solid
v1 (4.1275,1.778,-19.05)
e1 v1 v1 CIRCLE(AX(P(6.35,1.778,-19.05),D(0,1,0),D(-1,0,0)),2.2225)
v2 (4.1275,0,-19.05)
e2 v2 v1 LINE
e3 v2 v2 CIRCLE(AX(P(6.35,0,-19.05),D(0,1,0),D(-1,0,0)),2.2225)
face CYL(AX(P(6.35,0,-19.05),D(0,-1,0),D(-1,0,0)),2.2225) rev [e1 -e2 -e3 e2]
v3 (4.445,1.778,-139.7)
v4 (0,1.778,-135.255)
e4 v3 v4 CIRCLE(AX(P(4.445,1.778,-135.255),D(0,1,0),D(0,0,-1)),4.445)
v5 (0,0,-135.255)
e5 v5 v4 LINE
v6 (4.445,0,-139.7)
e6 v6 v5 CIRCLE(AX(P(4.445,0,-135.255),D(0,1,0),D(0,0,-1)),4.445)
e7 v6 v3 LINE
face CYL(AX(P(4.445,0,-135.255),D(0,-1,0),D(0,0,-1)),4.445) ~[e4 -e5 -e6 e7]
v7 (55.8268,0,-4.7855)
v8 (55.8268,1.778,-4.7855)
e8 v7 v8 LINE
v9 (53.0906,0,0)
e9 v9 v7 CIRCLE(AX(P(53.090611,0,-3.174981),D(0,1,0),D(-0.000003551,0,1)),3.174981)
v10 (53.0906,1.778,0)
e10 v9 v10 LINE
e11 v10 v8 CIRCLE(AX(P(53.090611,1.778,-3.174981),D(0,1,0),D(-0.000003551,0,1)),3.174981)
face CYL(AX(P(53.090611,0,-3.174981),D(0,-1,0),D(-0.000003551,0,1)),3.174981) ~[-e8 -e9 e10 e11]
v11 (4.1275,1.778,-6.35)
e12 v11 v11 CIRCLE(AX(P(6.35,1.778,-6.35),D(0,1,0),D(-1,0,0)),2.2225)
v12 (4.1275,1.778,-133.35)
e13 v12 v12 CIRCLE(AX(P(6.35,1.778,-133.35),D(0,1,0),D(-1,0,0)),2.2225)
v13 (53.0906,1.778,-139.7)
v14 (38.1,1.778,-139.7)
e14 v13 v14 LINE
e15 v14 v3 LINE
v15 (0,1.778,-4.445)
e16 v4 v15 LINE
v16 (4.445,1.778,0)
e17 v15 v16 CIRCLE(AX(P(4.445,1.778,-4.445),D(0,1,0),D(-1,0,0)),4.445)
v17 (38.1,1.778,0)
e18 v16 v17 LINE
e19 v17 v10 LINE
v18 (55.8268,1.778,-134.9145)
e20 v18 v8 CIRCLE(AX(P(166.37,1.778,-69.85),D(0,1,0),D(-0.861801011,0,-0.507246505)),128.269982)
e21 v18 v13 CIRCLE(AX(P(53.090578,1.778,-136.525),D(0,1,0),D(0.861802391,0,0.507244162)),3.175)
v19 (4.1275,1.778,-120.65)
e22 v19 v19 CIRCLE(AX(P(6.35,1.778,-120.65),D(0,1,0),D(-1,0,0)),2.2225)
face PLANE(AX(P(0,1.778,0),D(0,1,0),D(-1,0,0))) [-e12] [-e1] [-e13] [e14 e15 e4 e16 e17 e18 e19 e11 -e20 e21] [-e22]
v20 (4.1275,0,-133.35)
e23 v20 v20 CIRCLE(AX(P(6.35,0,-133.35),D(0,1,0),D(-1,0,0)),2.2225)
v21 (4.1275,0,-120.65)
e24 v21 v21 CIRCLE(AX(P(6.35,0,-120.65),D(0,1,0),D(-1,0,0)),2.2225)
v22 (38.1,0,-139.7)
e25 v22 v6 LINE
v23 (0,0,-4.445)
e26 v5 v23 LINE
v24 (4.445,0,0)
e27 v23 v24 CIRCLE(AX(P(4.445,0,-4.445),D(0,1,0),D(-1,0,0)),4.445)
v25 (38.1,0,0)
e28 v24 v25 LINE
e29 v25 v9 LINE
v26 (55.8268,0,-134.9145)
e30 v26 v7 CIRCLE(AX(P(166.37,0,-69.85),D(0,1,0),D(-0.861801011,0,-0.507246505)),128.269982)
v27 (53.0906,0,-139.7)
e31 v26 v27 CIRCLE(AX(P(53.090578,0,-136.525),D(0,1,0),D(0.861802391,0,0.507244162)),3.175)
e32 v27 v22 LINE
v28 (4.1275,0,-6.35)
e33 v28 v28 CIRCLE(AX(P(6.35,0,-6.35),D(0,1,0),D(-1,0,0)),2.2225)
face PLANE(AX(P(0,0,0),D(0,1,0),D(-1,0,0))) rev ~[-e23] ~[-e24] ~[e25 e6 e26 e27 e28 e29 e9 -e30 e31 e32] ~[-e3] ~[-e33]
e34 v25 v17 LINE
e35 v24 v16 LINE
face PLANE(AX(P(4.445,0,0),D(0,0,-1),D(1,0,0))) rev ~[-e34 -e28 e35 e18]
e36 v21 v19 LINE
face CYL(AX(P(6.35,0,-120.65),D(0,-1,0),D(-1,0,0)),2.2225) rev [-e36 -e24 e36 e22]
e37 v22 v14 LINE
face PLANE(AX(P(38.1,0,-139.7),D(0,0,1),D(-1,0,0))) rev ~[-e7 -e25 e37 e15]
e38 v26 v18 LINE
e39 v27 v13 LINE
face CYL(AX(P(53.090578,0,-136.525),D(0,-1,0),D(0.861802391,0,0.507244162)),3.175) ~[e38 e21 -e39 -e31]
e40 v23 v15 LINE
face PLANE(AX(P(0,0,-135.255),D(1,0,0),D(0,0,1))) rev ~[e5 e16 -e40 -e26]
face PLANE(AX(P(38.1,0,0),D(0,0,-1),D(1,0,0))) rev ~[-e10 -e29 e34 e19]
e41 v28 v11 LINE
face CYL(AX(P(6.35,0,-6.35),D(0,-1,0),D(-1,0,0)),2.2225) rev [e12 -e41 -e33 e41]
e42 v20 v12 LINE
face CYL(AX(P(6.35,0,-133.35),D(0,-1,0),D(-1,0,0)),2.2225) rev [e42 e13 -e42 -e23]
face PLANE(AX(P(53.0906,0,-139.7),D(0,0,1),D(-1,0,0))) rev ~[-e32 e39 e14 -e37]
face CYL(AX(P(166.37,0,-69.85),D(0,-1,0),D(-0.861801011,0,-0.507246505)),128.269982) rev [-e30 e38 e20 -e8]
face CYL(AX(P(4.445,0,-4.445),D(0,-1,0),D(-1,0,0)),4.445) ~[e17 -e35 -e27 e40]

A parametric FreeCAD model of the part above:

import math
import FreeCAD as App
import Part
import Sketcher
Q = App.Units.Quantity

doc = App.newDocument("Part")
params = doc.addObject("Spreadsheet::Sheet", "Params")
for row, (alias, value) in enumerate([
    ("sketch1_diameter", "0.175 in"),
    ("sketch1_radius", "0.175 in"),
    ("sketch1_radius2", "0.125 in"),
    ("sketch1_radius3", "5.05 in"),
    ("pad1_length", "0.07 in"),
], start=1):
    params.set(f"A{row}", alias)
    params.set(f"B{row}", "=" + value)
    params.setAlias(f"B{row}", alias)

body = doc.addObject("PartDesign::Body", "Body")

# Sketch on XZ plane
sketch1 = doc.addObject("Sketcher::SketchObject", "Sketch")
body.addObject(sketch1)
sketch1.AttachmentSupport = (doc.XZ_Plane, [""])
sketch1.MapMode = "FlatFace"
sketch1.addGeometry([
    Part.ArcOfCircle(Part.Circle(App.Vector(4.445, -4.445, 0), App.Vector(0, 0, 1), 4.445), math.radians(90), math.radians(180)),  # 0
    Part.LineSegment(App.Vector(4.445, 0, 0), App.Vector(53.0906, 0, 0)),  # 1
    Part.ArcOfCircle(Part.Circle(App.Vector(53.0906, -3.175, 0), App.Vector(0, 0, 1), 3.175), math.radians(-30.480642), math.radians(90)),  # 2
    Part.ArcOfCircle(Part.Circle(App.Vector(166.37, -69.85, 0), App.Vector(0, 0, 1), 128.269982), math.radians(149.519406), math.radians(210.480594)),  # 3
    Part.ArcOfCircle(Part.Circle(App.Vector(53.0906, -136.525, 0), App.Vector(0, 0, 1), 3.17498), math.radians(-90), math.radians(30.480642)),  # 4
    Part.LineSegment(App.Vector(53.0906, -139.7, 0), App.Vector(4.445, -139.7, 0)),  # 5
    Part.ArcOfCircle(Part.Circle(App.Vector(4.445, -135.255, 0), App.Vector(0, 0, 1), 4.445), math.radians(180), math.radians(270)),  # 6
    Part.LineSegment(App.Vector(0, -135.255, 0), App.Vector(0, -4.445, 0)),  # 7
    Part.Circle(App.Vector(6.35, -133.35, 0), App.Vector(0, 0, 1), 2.2225),  # 8
    Part.Circle(App.Vector(6.35, -120.65, 0), App.Vector(0, 0, 1), 2.2225),  # 9
    Part.Circle(App.Vector(6.35, -19.05, 0), App.Vector(0, 0, 1), 2.2225),  # 10
    Part.Circle(App.Vector(6.35, -6.35, 0), App.Vector(0, 0, 1), 2.2225),  # 11
], False)
sketch1.addConstraint([
    Sketcher.Constraint("Tangent", 0, 1, 1, 1),
    Sketcher.Constraint("Tangent", 1, 2, 2, 2),
    Sketcher.Constraint("Tangent", 2, 1, 3, 1),
    Sketcher.Constraint("Tangent", 3, 2, 4, 2),
    Sketcher.Constraint("Tangent", 4, 1, 5, 1),
    Sketcher.Constraint("Tangent", 5, 2, 6, 2),
    Sketcher.Constraint("Tangent", 6, 1, 7, 1),
    Sketcher.Constraint("Tangent", 7, 2, 0, 2),
    Sketcher.Constraint("Horizontal", 1),
    Sketcher.Constraint("Horizontal", 5),
    Sketcher.Constraint("Vertical", 7),
    Sketcher.Constraint("Equal", 2, 4),
    Sketcher.Constraint("Equal", 0, 6),
    Sketcher.Constraint("Equal", 8, 9),
    Sketcher.Constraint("Equal", 9, 10),
    Sketcher.Constraint("Equal", 10, 11),
    Sketcher.Constraint("PointOnObject", 0, 1, -1),
    Sketcher.Constraint("PointOnObject", 6, 1, -2),
    Sketcher.Constraint("Vertical", 2, 3, 4, 3),
    Sketcher.Constraint("Vertical", 8, 3, 9, 3),
    Sketcher.Constraint("Vertical", 9, 3, 10, 3),
    Sketcher.Constraint("Vertical", 10, 3, 11, 3),
    Sketcher.Constraint("Diameter", 8, Q("0.175 in")),
    Sketcher.Constraint("Radius", 0, Q("0.175 in")),
    Sketcher.Constraint("Radius", 2, Q("0.125 in")),
    Sketcher.Constraint("Radius", 3, Q("5.05 in")),
    Sketcher.Constraint("DistanceY", 4, 3, 8, 3, Q("0.125 in")),
    Sketcher.Constraint("DistanceY", 9, 3, 10, 3, Q("4 in")),
    Sketcher.Constraint("DistanceY", 11, 3, 2, 3, Q("0.125 in")),
    Sketcher.Constraint("DistanceY", 8, 3, 11, 3, Q("5 in")),
    Sketcher.Constraint("DistanceX", 8, 3, 3, 3, Q("6.3 in")),
    Sketcher.Constraint("DistanceY", 8, 3, 9, 3, Q("0.5 in")),
    Sketcher.Constraint("DistanceX", -1, 1, 3, 3, Q("6.55 in")),
])
sketch1.setExpression("Constraints[22]", "Params.sketch1_diameter")
sketch1.setExpression("Constraints[23]", "Params.sketch1_radius")
sketch1.setExpression("Constraints[24]", "Params.sketch1_radius2")
sketch1.setExpression("Constraints[25]", "Params.sketch1_radius3")
pad1 = doc.addObject("PartDesign::Pad", "Pad")
body.addObject(pad1)
pad1.Profile = sketch1
pad1.setExpression("Length", "Params.pad1_length")
pad1.Reversed = True

doc.recompute()
